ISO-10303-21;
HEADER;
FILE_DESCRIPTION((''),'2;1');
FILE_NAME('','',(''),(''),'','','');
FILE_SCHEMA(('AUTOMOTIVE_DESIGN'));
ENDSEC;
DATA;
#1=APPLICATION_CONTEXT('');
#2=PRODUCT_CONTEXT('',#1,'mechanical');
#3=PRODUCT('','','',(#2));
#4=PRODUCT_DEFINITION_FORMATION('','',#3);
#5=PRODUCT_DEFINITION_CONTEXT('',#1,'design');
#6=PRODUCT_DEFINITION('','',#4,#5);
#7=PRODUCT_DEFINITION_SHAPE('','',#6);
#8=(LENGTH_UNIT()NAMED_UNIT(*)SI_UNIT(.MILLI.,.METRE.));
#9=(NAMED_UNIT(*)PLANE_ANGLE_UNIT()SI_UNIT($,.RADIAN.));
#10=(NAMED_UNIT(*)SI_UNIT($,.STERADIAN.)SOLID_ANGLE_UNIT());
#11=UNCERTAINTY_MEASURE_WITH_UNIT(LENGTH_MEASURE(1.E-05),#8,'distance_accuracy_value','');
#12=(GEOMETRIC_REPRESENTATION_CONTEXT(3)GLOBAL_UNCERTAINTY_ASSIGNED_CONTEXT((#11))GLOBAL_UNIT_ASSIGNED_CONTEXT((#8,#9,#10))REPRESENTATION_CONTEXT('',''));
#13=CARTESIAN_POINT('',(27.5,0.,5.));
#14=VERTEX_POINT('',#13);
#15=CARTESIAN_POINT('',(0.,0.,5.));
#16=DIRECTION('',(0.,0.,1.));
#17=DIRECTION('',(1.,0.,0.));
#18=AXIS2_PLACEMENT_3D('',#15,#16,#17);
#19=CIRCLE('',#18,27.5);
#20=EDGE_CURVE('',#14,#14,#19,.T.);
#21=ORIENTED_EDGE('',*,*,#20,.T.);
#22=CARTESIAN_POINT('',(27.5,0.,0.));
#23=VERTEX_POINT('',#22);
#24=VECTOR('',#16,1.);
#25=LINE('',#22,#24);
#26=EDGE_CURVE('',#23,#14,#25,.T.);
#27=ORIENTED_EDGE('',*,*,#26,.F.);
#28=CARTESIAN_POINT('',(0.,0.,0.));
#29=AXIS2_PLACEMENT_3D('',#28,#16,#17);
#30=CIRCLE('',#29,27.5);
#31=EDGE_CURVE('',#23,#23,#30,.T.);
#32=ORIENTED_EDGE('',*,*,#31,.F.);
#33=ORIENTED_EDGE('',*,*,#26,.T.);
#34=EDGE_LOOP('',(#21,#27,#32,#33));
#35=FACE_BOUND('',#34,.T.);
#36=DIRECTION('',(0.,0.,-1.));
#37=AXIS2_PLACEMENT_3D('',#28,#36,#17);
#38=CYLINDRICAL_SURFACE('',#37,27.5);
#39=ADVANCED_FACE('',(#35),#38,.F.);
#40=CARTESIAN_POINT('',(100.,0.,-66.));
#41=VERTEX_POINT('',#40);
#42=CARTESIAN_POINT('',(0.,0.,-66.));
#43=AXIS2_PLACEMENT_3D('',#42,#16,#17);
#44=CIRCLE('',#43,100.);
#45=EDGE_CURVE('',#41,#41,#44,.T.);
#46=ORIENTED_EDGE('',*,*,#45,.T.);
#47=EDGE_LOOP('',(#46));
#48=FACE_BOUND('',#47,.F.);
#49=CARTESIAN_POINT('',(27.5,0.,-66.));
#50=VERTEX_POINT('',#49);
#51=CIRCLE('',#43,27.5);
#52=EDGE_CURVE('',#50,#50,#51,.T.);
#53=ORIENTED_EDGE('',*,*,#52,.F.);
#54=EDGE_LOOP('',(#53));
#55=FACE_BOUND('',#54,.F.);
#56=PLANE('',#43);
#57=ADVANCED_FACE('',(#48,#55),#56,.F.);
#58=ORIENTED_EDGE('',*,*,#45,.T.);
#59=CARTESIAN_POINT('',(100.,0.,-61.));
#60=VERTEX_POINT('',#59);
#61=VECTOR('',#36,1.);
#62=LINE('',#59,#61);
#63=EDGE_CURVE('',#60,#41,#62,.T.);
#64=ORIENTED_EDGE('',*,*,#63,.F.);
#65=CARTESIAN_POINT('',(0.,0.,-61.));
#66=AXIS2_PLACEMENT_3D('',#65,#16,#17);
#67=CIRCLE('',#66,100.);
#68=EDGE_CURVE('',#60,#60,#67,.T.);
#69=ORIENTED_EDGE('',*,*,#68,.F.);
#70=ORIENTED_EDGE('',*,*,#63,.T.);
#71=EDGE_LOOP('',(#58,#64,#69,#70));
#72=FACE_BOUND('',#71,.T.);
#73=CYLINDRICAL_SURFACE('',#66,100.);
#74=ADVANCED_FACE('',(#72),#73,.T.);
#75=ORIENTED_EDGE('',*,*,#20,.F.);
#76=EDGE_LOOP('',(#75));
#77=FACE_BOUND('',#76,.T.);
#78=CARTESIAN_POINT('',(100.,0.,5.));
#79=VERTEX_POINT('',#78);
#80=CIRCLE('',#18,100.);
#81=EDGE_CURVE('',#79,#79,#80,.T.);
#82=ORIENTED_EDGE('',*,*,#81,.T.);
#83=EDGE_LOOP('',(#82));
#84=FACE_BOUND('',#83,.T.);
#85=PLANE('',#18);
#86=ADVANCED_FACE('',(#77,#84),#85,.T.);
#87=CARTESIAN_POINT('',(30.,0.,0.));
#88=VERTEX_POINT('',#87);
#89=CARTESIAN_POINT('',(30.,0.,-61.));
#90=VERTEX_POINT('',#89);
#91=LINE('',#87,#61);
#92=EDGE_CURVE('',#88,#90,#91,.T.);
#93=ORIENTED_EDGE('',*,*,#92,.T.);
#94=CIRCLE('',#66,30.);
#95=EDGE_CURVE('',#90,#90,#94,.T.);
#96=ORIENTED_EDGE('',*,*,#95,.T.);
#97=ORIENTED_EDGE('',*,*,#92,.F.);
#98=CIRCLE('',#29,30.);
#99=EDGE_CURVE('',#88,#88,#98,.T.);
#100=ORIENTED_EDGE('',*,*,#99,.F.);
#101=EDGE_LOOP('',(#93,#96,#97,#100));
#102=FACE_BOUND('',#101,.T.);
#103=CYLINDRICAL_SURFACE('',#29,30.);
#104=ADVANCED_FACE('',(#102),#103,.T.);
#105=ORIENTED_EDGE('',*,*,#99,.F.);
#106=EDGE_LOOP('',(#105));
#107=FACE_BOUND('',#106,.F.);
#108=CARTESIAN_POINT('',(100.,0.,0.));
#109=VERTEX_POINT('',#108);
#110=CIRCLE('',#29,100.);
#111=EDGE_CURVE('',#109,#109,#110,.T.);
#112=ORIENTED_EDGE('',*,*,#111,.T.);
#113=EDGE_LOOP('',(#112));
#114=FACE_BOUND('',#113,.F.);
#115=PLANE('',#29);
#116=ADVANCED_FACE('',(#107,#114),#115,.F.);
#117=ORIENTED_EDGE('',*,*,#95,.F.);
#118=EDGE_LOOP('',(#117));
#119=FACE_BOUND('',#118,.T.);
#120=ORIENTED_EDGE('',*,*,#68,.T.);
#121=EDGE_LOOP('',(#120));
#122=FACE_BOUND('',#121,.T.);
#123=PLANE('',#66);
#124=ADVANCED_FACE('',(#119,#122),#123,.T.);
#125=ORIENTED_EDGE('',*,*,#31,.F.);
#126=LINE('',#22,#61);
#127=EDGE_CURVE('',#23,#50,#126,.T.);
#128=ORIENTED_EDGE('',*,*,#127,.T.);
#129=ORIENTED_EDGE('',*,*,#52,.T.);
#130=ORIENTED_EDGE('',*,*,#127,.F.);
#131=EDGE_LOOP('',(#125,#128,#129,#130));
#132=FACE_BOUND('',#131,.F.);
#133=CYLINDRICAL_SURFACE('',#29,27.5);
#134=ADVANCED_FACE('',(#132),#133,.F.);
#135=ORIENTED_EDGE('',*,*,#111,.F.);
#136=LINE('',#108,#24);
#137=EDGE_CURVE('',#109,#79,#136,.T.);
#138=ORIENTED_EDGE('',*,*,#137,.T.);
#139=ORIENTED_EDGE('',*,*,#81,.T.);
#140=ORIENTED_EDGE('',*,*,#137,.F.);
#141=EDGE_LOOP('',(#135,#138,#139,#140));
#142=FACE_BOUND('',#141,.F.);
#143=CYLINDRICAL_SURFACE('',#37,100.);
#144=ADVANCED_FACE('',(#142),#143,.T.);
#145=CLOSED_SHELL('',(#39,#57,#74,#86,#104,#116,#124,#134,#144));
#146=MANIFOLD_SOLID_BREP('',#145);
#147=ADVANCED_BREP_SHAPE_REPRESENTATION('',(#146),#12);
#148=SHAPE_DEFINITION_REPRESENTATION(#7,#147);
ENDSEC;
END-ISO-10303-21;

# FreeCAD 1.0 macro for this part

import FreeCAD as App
import Part
import Sketcher

V = App.Vector
Q = App.Units.Quantity

doc = App.newDocument("Part")
body = doc.addObject("PartDesign::Body", "Body")

# Sketch on XY plane
sketch1 = doc.addObject("Sketcher::SketchObject", "Sketch")
body.addObject(sketch1)
sketch1.AttachmentSupport = (doc.XY_Plane, [""])
sketch1.MapMode = "FlatFace"
sketch1.addGeometry(Part.Circle(V(0, 0, 0), V(0, 0, 1), 100), False)
sketch1.addGeometry(Part.Circle(V(0, 0, 0), V(0, 0, 1), 30), False)
sketch1.addConstraint(Sketcher.Constraint("Coincident", 0, 3, -1, 1))
sketch1.addConstraint(Sketcher.Constraint("Coincident", 1, 3, -1, 1))
sketch1.addConstraint(Sketcher.Constraint("Diameter", 0, Q("200 mm")))
sketch1.addConstraint(Sketcher.Constraint("Diameter", 1, Q("60 mm")))
pad1 = doc.addObject("PartDesign::Pad", "Pad")
body.addObject(pad1)
pad1.Profile = sketch1
pad1.Length = 5

# Sketch on XY plane
sketch2 = doc.addObject("Sketcher::SketchObject", "Sketch001")
body.addObject(sketch2)
sketch2.AttachmentSupport = (doc.XY_Plane, [""])
sketch2.MapMode = "FlatFace"
sketch2.addGeometry(Part.Circle(V(0, 0, 0), V(0, 0, 1), 30), False)
sketch2.addGeometry(Part.Circle(V(0, 0, 0), V(0, 0, 1), 27.5), False)
sketch2.addConstraint(Sketcher.Constraint("Coincident", 0, 3, -1, 1))
sketch2.addConstraint(Sketcher.Constraint("Coincident", 1, 3, -1, 1))
sketch2.addConstraint(Sketcher.Constraint("Diameter", 0, Q("60 mm")))
sketch2.addConstraint(Sketcher.Constraint("Diameter", 1, Q("55 mm")))
pad2 = doc.addObject("PartDesign::Pad", "Pad001")
body.addObject(pad2)
pad2.Profile = sketch2
pad2.Type = "TwoLengths"
pad2.Length = 5
pad2.Length2 = 66

# Sketch on XY plane
sketch3 = doc.addObject("Sketcher::SketchObject", "Sketch002")
body.addObject(sketch3)
sketch3.AttachmentSupport = (doc.XY_Plane, [""])
sketch3.MapMode = "FlatFace"
sketch3.AttachmentOffset = App.Placement(V(0, 0, -61), App.Rotation())
sketch3.addGeometry(Part.Circle(V(0, 0, 0), V(0, 0, 1), 100), False)
sketch3.addGeometry(Part.Circle(V(0, 0, 0), V(0, 0, 1), 30), False)
sketch3.addConstraint(Sketcher.Constraint("Coincident", 0, 3, -1, 1))
sketch3.addConstraint(Sketcher.Constraint("Coincident", 1, 3, -1, 1))
sketch3.addConstraint(Sketcher.Constraint("Diameter", 0, Q("200 mm")))
sketch3.addConstraint(Sketcher.Constraint("Diameter", 1, Q("60 mm")))
pad3 = doc.addObject("PartDesign::Pad", "Pad002")
body.addObject(pad3)
pad3.Profile = sketch3
pad3.Length = 5
pad3.Reversed = True

doc.recompute()
